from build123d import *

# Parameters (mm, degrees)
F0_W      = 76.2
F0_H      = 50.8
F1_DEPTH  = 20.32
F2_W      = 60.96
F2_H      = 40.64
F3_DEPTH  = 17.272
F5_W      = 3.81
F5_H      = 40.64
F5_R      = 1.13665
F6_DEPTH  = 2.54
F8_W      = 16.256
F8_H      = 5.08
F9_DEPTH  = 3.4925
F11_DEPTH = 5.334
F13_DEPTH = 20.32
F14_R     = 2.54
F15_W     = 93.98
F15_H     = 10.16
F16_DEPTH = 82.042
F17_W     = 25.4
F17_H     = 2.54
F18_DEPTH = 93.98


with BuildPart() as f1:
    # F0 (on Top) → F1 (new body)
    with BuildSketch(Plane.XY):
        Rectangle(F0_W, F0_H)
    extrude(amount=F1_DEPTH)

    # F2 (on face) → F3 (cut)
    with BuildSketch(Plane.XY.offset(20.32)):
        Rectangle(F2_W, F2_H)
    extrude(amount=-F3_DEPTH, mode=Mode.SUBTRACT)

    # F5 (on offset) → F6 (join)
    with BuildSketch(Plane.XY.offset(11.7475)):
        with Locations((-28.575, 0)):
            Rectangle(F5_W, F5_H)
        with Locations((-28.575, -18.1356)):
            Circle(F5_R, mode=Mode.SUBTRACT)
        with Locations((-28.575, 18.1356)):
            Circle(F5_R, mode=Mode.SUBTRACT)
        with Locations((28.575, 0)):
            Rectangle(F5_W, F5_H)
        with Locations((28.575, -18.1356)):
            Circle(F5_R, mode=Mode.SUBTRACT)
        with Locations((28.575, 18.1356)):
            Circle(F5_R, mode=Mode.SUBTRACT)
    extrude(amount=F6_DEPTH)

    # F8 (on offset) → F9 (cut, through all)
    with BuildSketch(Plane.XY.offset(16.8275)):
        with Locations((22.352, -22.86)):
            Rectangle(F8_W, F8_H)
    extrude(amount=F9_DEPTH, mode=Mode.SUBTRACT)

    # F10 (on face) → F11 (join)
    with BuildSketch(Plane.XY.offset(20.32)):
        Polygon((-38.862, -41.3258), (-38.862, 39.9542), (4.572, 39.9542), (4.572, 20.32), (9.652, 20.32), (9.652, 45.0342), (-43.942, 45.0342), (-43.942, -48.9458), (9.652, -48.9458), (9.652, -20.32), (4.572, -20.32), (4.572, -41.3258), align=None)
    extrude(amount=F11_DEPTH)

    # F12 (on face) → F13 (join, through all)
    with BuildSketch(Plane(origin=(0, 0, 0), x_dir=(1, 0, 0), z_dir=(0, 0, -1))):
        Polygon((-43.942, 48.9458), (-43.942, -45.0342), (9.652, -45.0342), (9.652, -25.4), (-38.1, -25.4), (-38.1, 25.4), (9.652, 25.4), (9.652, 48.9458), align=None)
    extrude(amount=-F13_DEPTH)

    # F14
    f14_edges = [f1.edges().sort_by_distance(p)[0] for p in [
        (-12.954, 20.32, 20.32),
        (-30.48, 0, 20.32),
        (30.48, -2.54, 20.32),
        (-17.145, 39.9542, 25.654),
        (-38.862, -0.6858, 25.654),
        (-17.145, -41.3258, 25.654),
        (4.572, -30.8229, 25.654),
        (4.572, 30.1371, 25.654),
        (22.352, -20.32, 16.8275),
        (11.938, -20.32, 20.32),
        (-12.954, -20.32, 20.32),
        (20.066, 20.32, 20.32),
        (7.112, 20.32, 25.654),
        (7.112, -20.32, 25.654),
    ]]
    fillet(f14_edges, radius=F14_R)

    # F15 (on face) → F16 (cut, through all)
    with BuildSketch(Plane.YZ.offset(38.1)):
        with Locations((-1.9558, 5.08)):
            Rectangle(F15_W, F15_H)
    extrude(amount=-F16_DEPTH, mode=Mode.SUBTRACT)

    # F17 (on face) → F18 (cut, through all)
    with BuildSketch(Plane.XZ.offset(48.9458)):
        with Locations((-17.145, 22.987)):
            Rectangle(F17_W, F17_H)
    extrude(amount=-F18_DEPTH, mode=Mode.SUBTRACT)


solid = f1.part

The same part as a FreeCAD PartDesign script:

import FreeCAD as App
import Part
import Sketcher
from FreeCAD import Vector
Q = App.Units.Quantity


def edges_at(feature, points):
    """Names of the edges that pass closest to the given points."""
    edges = feature.Shape.Edges
    near = lambda p: min(range(len(edges)), key=lambda i: edges[i].distToShape(Part.Vertex(*p))[0])
    return sorted({f"Edge{near(p) + 1}" for p in points})


def add_polygon(sketch, points):
    """Adds a closed chain of lines whose ends are joined by coincident constraints."""
    first, n = sketch.GeometryCount, len(points)
    for a, b in zip(points, points[1:] + points[:1]):
        sketch.addGeometry(Part.LineSegment(App.Vector(*a, 0), App.Vector(*b, 0)), False)
    for i in range(n):
        sketch.addConstraint(Sketcher.Constraint("Coincident", first + i, 2, first + (i + 1) % n, 1))

doc = App.newDocument("Part")
body = doc.addObject("PartDesign::Body", "Body")

# Sketch on XY plane
sketch1 = doc.addObject("Sketcher::SketchObject", "Sketch")
body.addObject(sketch1)
sketch1.AttachmentSupport = (doc.XY_Plane, [""])
sketch1.MapMode = "FlatFace"
add_polygon(sketch1, [(-38, 25), (-38, -25), (38, -25), (38, 25)])  # lines 0-3
sketch1.addConstraint(Sketcher.Constraint("Vertical", 0))
sketch1.addConstraint(Sketcher.Constraint("Horizontal", 1))
sketch1.addConstraint(Sketcher.Constraint("Vertical", 2))
sketch1.addConstraint(Sketcher.Constraint("Horizontal", 3))
sketch1.addConstraint(Sketcher.Constraint("Symmetric", 0, 2, 2, 2, -1, 1))
sketch1.addConstraint(Sketcher.Constraint("DistanceX", 1, 1, 1, 2, Q("3 in")))
sketch1.addConstraint(Sketcher.Constraint("DistanceY", 0, 2, 0, 1, Q("2 in")))
pad1 = doc.addObject("PartDesign::Pad", "Pad")
body.addObject(pad1)
pad1.Profile = sketch1
pad1.Length = Q("0.8 in")

# Sketch on XY plane
sketch2 = doc.addObject("Sketcher::SketchObject", "Sketch001")
body.addObject(sketch2)
sketch2.AttachmentSupport = (doc.XY_Plane, [""])
sketch2.MapMode = "FlatFace"
sketch2.AttachmentOffset = App.Placement(Vector(0, 0, 0.8 * 25.4), App.Rotation())
add_polygon(sketch2, [(-30, 20), (-30, -20), (30, -20), (30, 20)])  # lines 0-3
sketch2.addConstraint(Sketcher.Constraint("Vertical", 0))
sketch2.addConstraint(Sketcher.Constraint("Horizontal", 1))
sketch2.addConstraint(Sketcher.Constraint("Vertical", 2))
sketch2.addConstraint(Sketcher.Constraint("Horizontal", 3))
sketch2.addConstraint(Sketcher.Constraint("Symmetric", 0, 2, 2, 2, -1, 1))
sketch2.addConstraint(Sketcher.Constraint("DistanceX", 1, 1, 1, 2, Q("2.4 in")))
sketch2.addConstraint(Sketcher.Constraint("DistanceY", 0, 2, 0, 1, Q("1.6 in")))
pocket1 = doc.addObject("PartDesign::Pocket", "Pocket")
body.addObject(pocket1)
pocket1.Profile = sketch2
pocket1.Length = Q("0.68 in")

# Sketch on XY plane
sketch3 = doc.addObject("Sketcher::SketchObject", "Sketch002")
body.addObject(sketch3)
sketch3.AttachmentSupport = (doc.XY_Plane, [""])
sketch3.MapMode = "FlatFace"
sketch3.AttachmentOffset = App.Placement(Vector(0, 0, 0.4625 * 25.4), App.Rotation())
add_polygon(sketch3, [(-30.5, 20.3), (-30.5, -20.3), (-26.7, -20.3), (-26.7, 20.3)])  # lines 0-3
sketch3.addGeometry(Part.Circle(Vector(-28.6, -18.1, 0), Vector(0, 0, 1), 1.1), False)  # 4
sketch3.addGeometry(Part.Circle(Vector(-28.6, 18.1, 0), Vector(0, 0, 1), 1.1), False)  # 5
add_polygon(sketch3, [(26.7, 20.3), (26.7, -20.3), (30.5, -20.3), (30.5, 20.3)])  # lines 6-9
sketch3.addGeometry(Part.Circle(Vector(28.6, -18.1, 0), Vector(0, 0, 1), 1.1), False)  # 10
sketch3.addGeometry(Part.Circle(Vector(28.6, 18.1, 0), Vector(0, 0, 1), 1.1), False)  # 11
sketch3.addConstraint(Sketcher.Constraint("Vertical", 0))
sketch3.addConstraint(Sketcher.Constraint("Horizontal", 1))
sketch3.addConstraint(Sketcher.Constraint("Vertical", 2))
sketch3.addConstraint(Sketcher.Constraint("Horizontal", 3))
sketch3.addConstraint(Sketcher.Constraint("Vertical", 6))
sketch3.addConstraint(Sketcher.Constraint("Horizontal", 7))
sketch3.addConstraint(Sketcher.Constraint("Vertical", 8))
sketch3.addConstraint(Sketcher.Constraint("Horizontal", 9))
sketch3.addConstraint(Sketcher.Constraint("Equal", 4, 5))
sketch3.addConstraint(Sketcher.Constraint("Equal", 5, 10))
sketch3.addConstraint(Sketcher.Constraint("Equal", 10, 11))
sketch3.addConstraint(Sketcher.Constraint("Symmetric", 5, 3, 10, 3, -1, 1))
sketch3.addConstraint(Sketcher.Constraint("Symmetric", 4, 3, 11, 3, -1, 1))
sketch3.addConstraint(Sketcher.Constraint("Symmetric", 2, 2, 6, 2, -1, 1))
sketch3.addConstraint(Sketcher.Constraint("Symmetric", 0, 2, 8, 2, -1, 1))
sketch3.addConstraint(Sketcher.Constraint("Symmetric", 4, 3, 10, 3, -2))
sketch3.addConstraint(Sketcher.Constraint("Horizontal", 1, 2, 6, 2))
sketch3.addConstraint(Sketcher.Constraint("DistanceY", 0, 2, 0, 1, Q("1.6 in")))
sketch3.addConstraint(Sketcher.Constraint("Diameter", 4, Q("0.0895 in")))
sketch3.addConstraint(Sketcher.Constraint("DistanceX", 1, 1, 1, 2, Q("0.15 in")))
sketch3.addConstraint(Sketcher.Constraint("DistanceX", 0, 2, -1, 1, Q("1.2 in")))
sketch3.addConstraint(Sketcher.Constraint("DistanceX", 4, 3, 10, 3, Q("2.25 in")))
sketch3.addConstraint(Sketcher.Constraint("DistanceY", 4, 3, -1, 1, Q("0.714 in")))
pad2 = doc.addObject("PartDesign::Pad", "Pad001")
body.addObject(pad2)
pad2.Profile = sketch3
pad2.Length = Q("0.1 in")

# Sketch on XY plane
sketch4 = doc.addObject("Sketcher::SketchObject", "Sketch003")
body.addObject(sketch4)
sketch4.AttachmentSupport = (doc.XY_Plane, [""])
sketch4.MapMode = "FlatFace"
sketch4.AttachmentOffset = App.Placement(Vector(0, 0, 0.6625 * 25.4), App.Rotation())
add_polygon(sketch4, [(14, -20), (14, -25), (30, -25), (30, -20)])  # lines 0-3
sketch4.addConstraint(Sketcher.Constraint("Vertical", 0))
sketch4.addConstraint(Sketcher.Constraint("Horizontal", 1))
sketch4.addConstraint(Sketcher.Constraint("Vertical", 2))
sketch4.addConstraint(Sketcher.Constraint("Horizontal", 3))
sketch4.addConstraint(Sketcher.Constraint("DistanceY", 0, 2, 0, 1, Q("0.2 in")))
sketch4.addConstraint(Sketcher.Constraint("DistanceY", 0, 2, -1, 1, Q("1 in")))
sketch4.addConstraint(Sketcher.Constraint("DistanceX", 1, 1, 1, 2, Q("0.64 in")))
sketch4.addConstraint(Sketcher.Constraint("DistanceX", -1, 1, 1, 2, Q("1.2 in")))
pocket2 = doc.addObject("PartDesign::Pocket", "Pocket001")
body.addObject(pocket2)
pocket2.Profile = sketch4
pocket2.Type = "ThroughAll"
pocket2.Reversed = True

# Sketch on XY plane
sketch5 = doc.addObject("Sketcher::SketchObject", "Sketch004")
body.addObject(sketch5)
sketch5.AttachmentSupport = (doc.XY_Plane, [""])
sketch5.MapMode = "FlatFace"
sketch5.AttachmentOffset = App.Placement(Vector(0, 0, 0.8 * 25.4), App.Rotation())
add_polygon(sketch5, [(-39, -41), (-39, 40), (5, 40), (5, 20), (10, 20), (10, 45), (-44, 45), (-44, -49), (10, -49), (10, -20), (5, -20), (5, -41)])  # lines 0-11
sketch5.addConstraint(Sketcher.Constraint("Vertical", 0))
sketch5.addConstraint(Sketcher.Constraint("Horizontal", 1))
sketch5.addConstraint(Sketcher.Constraint("Vertical", 2))
sketch5.addConstraint(Sketcher.Constraint("Horizontal", 3))
sketch5.addConstraint(Sketcher.Constraint("Vertical", 4))
sketch5.addConstraint(Sketcher.Constraint("Horizontal", 5))
sketch5.addConstraint(Sketcher.Constraint("Vertical", 6))
sketch5.addConstraint(Sketcher.Constraint("Horizontal", 7))
sketch5.addConstraint(Sketcher.Constraint("Vertical", 8))
sketch5.addConstraint(Sketcher.Constraint("Horizontal", 9))
sketch5.addConstraint(Sketcher.Constraint("Vertical", 10))
sketch5.addConstraint(Sketcher.Constraint("Horizontal", 11))
sketch5.addConstraint(Sketcher.Constraint("Symmetric", 3, 2, 8, 2, -1))
sketch5.addConstraint(Sketcher.Constraint("Vertical", 2, 2, 9, 2))
sketch5.addConstraint(Sketcher.Constraint("DistanceX", 3, 1, 3, 2, Q("0.2 in")))
sketch5.addConstraint(Sketcher.Constraint("DistanceY", 0, 1, 0, 2, Q("3.2 in")))
sketch5.addConstraint(Sketcher.Constraint("DistanceY", 6, 2, 6, 1, Q("3.7 in")))
sketch5.addConstraint(Sketcher.Constraint("DistanceX", 1, 1, 1, 2, Q("1.71 in")))
sketch5.addConstraint(Sketcher.Constraint("DistanceX", 5, 2, 5, 1, Q("2.11 in")))
sketch5.addConstraint(Sketcher.Constraint("DistanceY", -1, 1, 2, 2, Q("0.8 in")))
sketch5.addConstraint(Sketcher.Constraint("DistanceY", 1, 2, 4, 2, Q("0.2 in")))
sketch5.addConstraint(Sketcher.Constraint("DistanceY", 2, 2, 2, 1, Q("0.773 in")))
sketch5.addConstraint(Sketcher.Constraint("DistanceX", 0, 2, -1, 1, Q("1.53 in")))
pad3 = doc.addObject("PartDesign::Pad", "Pad002")
body.addObject(pad3)
pad3.Profile = sketch5
pad3.Length = Q("0.21 in")

# Sketch on XY plane
sketch6 = doc.addObject("Sketcher::SketchObject", "Sketch005")
body.addObject(sketch6)
sketch6.AttachmentSupport = (doc.XY_Plane, [""])
sketch6.MapMode = "FlatFace"
add_polygon(sketch6, [(-44, -49), (-44, 45), (10, 45), (10, 25), (-38, 25), (-38, -25), (10, -25), (10, -49)])  # lines 0-7
sketch6.addConstraint(Sketcher.Constraint("Vertical", 0))
sketch6.addConstraint(Sketcher.Constraint("Horizontal", 1))
sketch6.addConstraint(Sketcher.Constraint("Vertical", 2))
sketch6.addConstraint(Sketcher.Constraint("Horizontal", 3))
sketch6.addConstraint(Sketcher.Constraint("Vertical", 4))
sketch6.addConstraint(Sketcher.Constraint("Horizontal", 5))
sketch6.addConstraint(Sketcher.Constraint("Vertical", 6))
sketch6.addConstraint(Sketcher.Constraint("Horizontal", 7))
sketch6.addConstraint(Sketcher.Constraint("Symmetric", 2, 2, 5, 2, -1))
sketch6.addConstraint(Sketcher.Constraint("DistanceY", 4, 2, 4, 1, Q("2 in")))
sketch6.addConstraint(Sketcher.Constraint("DistanceY", 0, 1, 0, 2, Q("3.7 in")))
sketch6.addConstraint(Sketcher.Constraint("DistanceX", 1, 1, 1, 2, Q("2.11 in")))
sketch6.addConstraint(Sketcher.Constraint("DistanceX", 3, 2, 3, 1, Q("1.88 in")))
sketch6.addConstraint(Sketcher.Constraint("DistanceX", 3, 2, -1, 1, Q("1.5 in")))
sketch6.addConstraint(Sketcher.Constraint("DistanceY", 2, 2, 2, 1, Q("0.773 in")))
pad4 = doc.addObject("PartDesign::Pad", "Pad003")
body.addObject(pad4)
pad4.Profile = sketch6
pad4.Length = Q("0.8 in")
doc.recompute()

fillet = doc.addObject("PartDesign::Fillet", "Fillet")
body.addObject(fillet)
fillet.Base = (pad4, edges_at(pad4, [
    (-12.954, 20.32, 20.32),
    (-30.48, 0, 20.32),
    (30.48, -2.54, 20.32),
    (-17.145, 39.954, 25.654),
    (-38.862, -0.686, 25.654),
    (-17.145, -41.326, 25.654),
    (4.572, -30.823, 25.654),
    (4.572, 30.137, 25.654),
    (22.352, -20.32, 16.828),
    (11.938, -20.32, 20.32),
    (-12.954, -20.32, 20.32),
    (20.066, 20.32, 20.32),
    (7.112, 20.32, 25.654),
    (7.112, -20.32, 25.654),
]))
fillet.Radius = Q("0.1 in")

# Sketch on YZ plane
sketch7 = doc.addObject("Sketcher::SketchObject", "Sketch006")
body.addObject(sketch7)
sketch7.AttachmentSupport = (doc.YZ_Plane, [""])
sketch7.MapMode = "FlatFace"
sketch7.AttachmentOffset = App.Placement(Vector(0, 0, 1.5 * 25.4), App.Rotation())
add_polygon(sketch7, [(-49, 10), (-49, 0), (45, 0), (45, 10)])  # lines 0-3
sketch7.addConstraint(Sketcher.Constraint("Vertical", 0))
sketch7.addConstraint(Sketcher.Constraint("Horizontal", 1))
sketch7.addConstraint(Sketcher.Constraint("Vertical", 2))
sketch7.addConstraint(Sketcher.Constraint("Horizontal", 3))
sketch7.addConstraint(Sketcher.Constraint("PointOnObject", 0, 2, -1))
sketch7.addConstraint(Sketcher.Constraint("DistanceX", 1, 1, 1, 2, Q("3.7 in")))
sketch7.addConstraint(Sketcher.Constraint("DistanceY", 0, 2, 0, 1, Q("0.4 in")))
sketch7.addConstraint(Sketcher.Constraint("DistanceX", 0, 2, -1, 1, Q("1.927 in")))
pocket3 = doc.addObject("PartDesign::Pocket", "Pocket002")
body.addObject(pocket3)
pocket3.Profile = sketch7
pocket3.Type = "ThroughAll"

# Sketch on XZ plane
sketch8 = doc.addObject("Sketcher::SketchObject", "Sketch007")
body.addObject(sketch8)
sketch8.AttachmentSupport = (doc.XZ_Plane, [""])
sketch8.MapMode = "FlatFace"
sketch8.AttachmentOffset = App.Placement(Vector(0, 0, 1.927 * 25.4), App.Rotation())
add_polygon(sketch8, [(-29.8, 24.3), (-29.8, 21.7), (-4.4, 21.7), (-4.4, 24.3)])  # lines 0-3
sketch8.addConstraint(Sketcher.Constraint("Vertical", 0))
sketch8.addConstraint(Sketcher.Constraint("Horizontal", 1))
sketch8.addConstraint(Sketcher.Constraint("Vertical", 2))
sketch8.addConstraint(Sketcher.Constraint("Horizontal", 3))
sketch8.addConstraint(Sketcher.Constraint("DistanceX", 1, 1, 1, 2, Q("1 in")))
sketch8.addConstraint(Sketcher.Constraint("DistanceY", 0, 2, 0, 1, Q("0.1 in")))
sketch8.addConstraint(Sketcher.Constraint("DistanceX", 0, 2, -1, 1, Q("1.175 in")))
sketch8.addConstraint(Sketcher.Constraint("DistanceY", -1, 1, 0, 2, Q("0.855 in")))
pocket4 = doc.addObject("PartDesign::Pocket", "Pocket003")
body.addObject(pocket4)
pocket4.Profile = sketch8
pocket4.Type = "ThroughAll"

doc.recompute()
